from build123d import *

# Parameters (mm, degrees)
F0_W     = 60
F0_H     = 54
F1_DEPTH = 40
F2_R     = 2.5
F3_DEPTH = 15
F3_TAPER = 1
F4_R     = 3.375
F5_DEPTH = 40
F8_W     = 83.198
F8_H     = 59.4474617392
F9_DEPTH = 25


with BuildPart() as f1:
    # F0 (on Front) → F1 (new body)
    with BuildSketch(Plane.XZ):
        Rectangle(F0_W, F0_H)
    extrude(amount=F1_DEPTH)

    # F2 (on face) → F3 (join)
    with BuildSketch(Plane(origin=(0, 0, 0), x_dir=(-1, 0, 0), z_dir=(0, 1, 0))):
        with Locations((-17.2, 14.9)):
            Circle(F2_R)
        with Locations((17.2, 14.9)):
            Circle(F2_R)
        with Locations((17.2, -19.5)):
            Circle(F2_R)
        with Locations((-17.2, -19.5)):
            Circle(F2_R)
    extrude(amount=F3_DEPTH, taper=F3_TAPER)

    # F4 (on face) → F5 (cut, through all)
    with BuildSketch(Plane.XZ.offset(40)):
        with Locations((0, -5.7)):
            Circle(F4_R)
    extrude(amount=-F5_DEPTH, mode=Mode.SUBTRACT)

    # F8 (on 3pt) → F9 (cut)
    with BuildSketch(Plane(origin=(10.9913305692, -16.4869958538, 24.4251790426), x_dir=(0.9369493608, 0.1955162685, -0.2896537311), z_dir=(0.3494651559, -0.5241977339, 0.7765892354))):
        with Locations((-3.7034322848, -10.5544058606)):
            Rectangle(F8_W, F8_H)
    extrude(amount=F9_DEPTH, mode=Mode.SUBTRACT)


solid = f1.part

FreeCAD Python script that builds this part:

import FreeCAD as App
import Part
import Sketcher
Q = App.Units.Quantity


def add_polygon(sketch, points):
    """Adds a closed chain of lines whose ends are joined by coincident constraints."""
    first, n = sketch.GeometryCount, len(points)
    for a, b in zip(points, points[1:] + points[:1]):
        sketch.addGeometry(Part.LineSegment(App.Vector(*a, 0), App.Vector(*b, 0)), False)
    for i in range(n):
        sketch.addConstraint(Sketcher.Constraint("Coincident", first + i, 2, first + (i + 1) % n, 1))

doc = App.newDocument("Part")
params = doc.addObject("Spreadsheet::Sheet", "Params")
for row, (alias, value) in enumerate([
    ("sketch1_width", "60 mm"),
    ("sketch1_height", "54 mm"),
    ("pad1_length", "40 mm"),
    ("sketch2_diameter", "5 mm"),
    ("pad2_length", "15 mm"),
    ("pad2_taper", "-1 deg"),
    ("sketch3_diameter", "6.75 mm"),
    ("pocket2_length", "25 mm"),
], start=1):
    params.set(f"A{row}", alias)
    params.set(f"B{row}", "=" + value)
    params.setAlias(f"B{row}", alias)

body = doc.addObject("PartDesign::Body", "Body")

sketch1 = body.newObject("Sketcher::SketchObject", "Sketch")
sketch1.AttachmentSupport = (doc.getObject("XZ_Plane"), [""])
sketch1.MapMode = "FlatFace"
add_polygon(sketch1, [(-30, 27), (-30, -27), (30, -27), (30, 27)])
sketch1.addConstraint([
    Sketcher.Constraint("Vertical", 0),
    Sketcher.Constraint("Horizontal", 1),
    Sketcher.Constraint("Vertical", 2),
    Sketcher.Constraint("Horizontal", 3),
    Sketcher.Constraint("Symmetric", 0, 2, 2, 2, -1, 1),
    Sketcher.Constraint("DistanceX", 1, 1, 1, 2, Q("60 mm")),
    Sketcher.Constraint("DistanceY", 0, 2, 0, 1, Q("54 mm")),
])
sketch1.setExpression("Constraints[9]", "Params.sketch1_width")
sketch1.setExpression("Constraints[10]", "Params.sketch1_height")
pad1 = body.newObject("PartDesign::Pad", "Pad")
pad1.Profile = sketch1
pad1.setExpression("Length", "Params.pad1_length")

sketch2 = body.newObject("Sketcher::SketchObject", "Sketch001")
sketch2.AttachmentSupport = (doc.getObject("XZ_Plane"), [""])
sketch2.MapMode = "FlatFace"
sketch2.addGeometry([
    Part.Circle(App.Vector(17.2, 14.9, 0), App.Vector(0, 0, 1), 2.5),
    Part.Circle(App.Vector(-17.2, 14.9, 0), App.Vector(0, 0, 1), 2.5),
    Part.Circle(App.Vector(-17.2, -19.5, 0), App.Vector(0, 0, 1), 2.5),
    Part.Circle(App.Vector(17.2, -19.5, 0), App.Vector(0, 0, 1), 2.5),
], False)
sketch2.addConstraint([
    Sketcher.Constraint("Equal", 0, 1),
    Sketcher.Constraint("Equal", 1, 2),
    Sketcher.Constraint("Equal", 2, 3),
    Sketcher.Constraint("Symmetric", 0, 3, 1, 3, -2),
    Sketcher.Constraint("Symmetric", 2, 3, 3, 3, -2),
    Sketcher.Constraint("Vertical", 1, 3, 2, 3),
    Sketcher.Constraint("Diameter", 0, Q("5 mm")),
    Sketcher.Constraint("DistanceX", -1, 1, 0, 3, Q("17.2 mm")),
    Sketcher.Constraint("DistanceY", -1, 1, 0, 3, Q("14.9 mm")),
    Sketcher.Constraint("DistanceY", 2, 3, -1, 1, Q("19.5 mm")),
])
sketch2.setExpression("Constraints[6]", "Params.sketch2_diameter")
pad2 = body.newObject("PartDesign::Pad", "Pad001")
pad2.Profile = sketch2
pad2.setExpression("Length", "Params.pad2_length")
pad2.Reversed = True
pad2.setExpression("TaperAngle", "Params.pad2_taper")

sketch3 = body.newObject("Sketcher::SketchObject", "Sketch002")
sketch3.AttachmentSupport = (doc.getObject("XZ_Plane"), [""])
sketch3.MapMode = "FlatFace"
sketch3.AttachmentOffset = App.Placement(App.Vector(0, 0, 40), App.Rotation())
sketch3.addGeometry(Part.Circle(App.Vector(0, -5.7, 0), App.Vector(0, 0, 1), 3.4), False)
sketch3.addConstraint([
    Sketcher.Constraint("PointOnObject", 0, 3, -2),
    Sketcher.Constraint("Diameter", 0, Q("6.75 mm")),
    Sketcher.Constraint("DistanceY", 0, 3, -1, 1, Q("5.7 mm")),
])
sketch3.setExpression("Constraints[1]", "Params.sketch3_diameter")
pocket1 = body.newObject("PartDesign::Pocket", "Pocket")
pocket1.Profile = sketch3
pocket1.Type = "ThroughAll"

sketch4 = body.newObject("Sketcher::SketchObject", "Sketch003")
sketch4.Placement = App.Placement(App.Vector(10.991331, -16.486996, 24.425179), App.Rotation(App.Vector(0.936949361, 0.195516269, -0.289653731), App.Vector(0, 0.828848674, 0.559472855), App.Vector(0.349465156, -0.524197734, 0.776589235), "ZXY"))
add_polygon(sketch4, [(-45, 19), (-45, -40), (38, -40), (38, 19)])
sketch4.addConstraint([
    Sketcher.Constraint("Vertical", 0),
    Sketcher.Constraint("Horizontal", 1),
    Sketcher.Constraint("Vertical", 2),
    Sketcher.Constraint("Horizontal", 3),
    Sketcher.Constraint("DistanceX", 1, 1, 1, 2, Q("83.198 mm")),
    Sketcher.Constraint("DistanceY", 0, 2, 0, 1, Q("59.447462 mm")),
    Sketcher.Constraint("DistanceX", 0, 2, -1, 1, Q("45.302432 mm")),
    Sketcher.Constraint("DistanceY", 0, 2, -1, 1, Q("40.278137 mm")),
])
pocket2 = body.newObject("PartDesign::Pocket", "Pocket001")
pocket2.Profile = sketch4
pocket2.setExpression("Length", "Params.pocket2_length")
pocket2.Reversed = True

doc.recompute()
